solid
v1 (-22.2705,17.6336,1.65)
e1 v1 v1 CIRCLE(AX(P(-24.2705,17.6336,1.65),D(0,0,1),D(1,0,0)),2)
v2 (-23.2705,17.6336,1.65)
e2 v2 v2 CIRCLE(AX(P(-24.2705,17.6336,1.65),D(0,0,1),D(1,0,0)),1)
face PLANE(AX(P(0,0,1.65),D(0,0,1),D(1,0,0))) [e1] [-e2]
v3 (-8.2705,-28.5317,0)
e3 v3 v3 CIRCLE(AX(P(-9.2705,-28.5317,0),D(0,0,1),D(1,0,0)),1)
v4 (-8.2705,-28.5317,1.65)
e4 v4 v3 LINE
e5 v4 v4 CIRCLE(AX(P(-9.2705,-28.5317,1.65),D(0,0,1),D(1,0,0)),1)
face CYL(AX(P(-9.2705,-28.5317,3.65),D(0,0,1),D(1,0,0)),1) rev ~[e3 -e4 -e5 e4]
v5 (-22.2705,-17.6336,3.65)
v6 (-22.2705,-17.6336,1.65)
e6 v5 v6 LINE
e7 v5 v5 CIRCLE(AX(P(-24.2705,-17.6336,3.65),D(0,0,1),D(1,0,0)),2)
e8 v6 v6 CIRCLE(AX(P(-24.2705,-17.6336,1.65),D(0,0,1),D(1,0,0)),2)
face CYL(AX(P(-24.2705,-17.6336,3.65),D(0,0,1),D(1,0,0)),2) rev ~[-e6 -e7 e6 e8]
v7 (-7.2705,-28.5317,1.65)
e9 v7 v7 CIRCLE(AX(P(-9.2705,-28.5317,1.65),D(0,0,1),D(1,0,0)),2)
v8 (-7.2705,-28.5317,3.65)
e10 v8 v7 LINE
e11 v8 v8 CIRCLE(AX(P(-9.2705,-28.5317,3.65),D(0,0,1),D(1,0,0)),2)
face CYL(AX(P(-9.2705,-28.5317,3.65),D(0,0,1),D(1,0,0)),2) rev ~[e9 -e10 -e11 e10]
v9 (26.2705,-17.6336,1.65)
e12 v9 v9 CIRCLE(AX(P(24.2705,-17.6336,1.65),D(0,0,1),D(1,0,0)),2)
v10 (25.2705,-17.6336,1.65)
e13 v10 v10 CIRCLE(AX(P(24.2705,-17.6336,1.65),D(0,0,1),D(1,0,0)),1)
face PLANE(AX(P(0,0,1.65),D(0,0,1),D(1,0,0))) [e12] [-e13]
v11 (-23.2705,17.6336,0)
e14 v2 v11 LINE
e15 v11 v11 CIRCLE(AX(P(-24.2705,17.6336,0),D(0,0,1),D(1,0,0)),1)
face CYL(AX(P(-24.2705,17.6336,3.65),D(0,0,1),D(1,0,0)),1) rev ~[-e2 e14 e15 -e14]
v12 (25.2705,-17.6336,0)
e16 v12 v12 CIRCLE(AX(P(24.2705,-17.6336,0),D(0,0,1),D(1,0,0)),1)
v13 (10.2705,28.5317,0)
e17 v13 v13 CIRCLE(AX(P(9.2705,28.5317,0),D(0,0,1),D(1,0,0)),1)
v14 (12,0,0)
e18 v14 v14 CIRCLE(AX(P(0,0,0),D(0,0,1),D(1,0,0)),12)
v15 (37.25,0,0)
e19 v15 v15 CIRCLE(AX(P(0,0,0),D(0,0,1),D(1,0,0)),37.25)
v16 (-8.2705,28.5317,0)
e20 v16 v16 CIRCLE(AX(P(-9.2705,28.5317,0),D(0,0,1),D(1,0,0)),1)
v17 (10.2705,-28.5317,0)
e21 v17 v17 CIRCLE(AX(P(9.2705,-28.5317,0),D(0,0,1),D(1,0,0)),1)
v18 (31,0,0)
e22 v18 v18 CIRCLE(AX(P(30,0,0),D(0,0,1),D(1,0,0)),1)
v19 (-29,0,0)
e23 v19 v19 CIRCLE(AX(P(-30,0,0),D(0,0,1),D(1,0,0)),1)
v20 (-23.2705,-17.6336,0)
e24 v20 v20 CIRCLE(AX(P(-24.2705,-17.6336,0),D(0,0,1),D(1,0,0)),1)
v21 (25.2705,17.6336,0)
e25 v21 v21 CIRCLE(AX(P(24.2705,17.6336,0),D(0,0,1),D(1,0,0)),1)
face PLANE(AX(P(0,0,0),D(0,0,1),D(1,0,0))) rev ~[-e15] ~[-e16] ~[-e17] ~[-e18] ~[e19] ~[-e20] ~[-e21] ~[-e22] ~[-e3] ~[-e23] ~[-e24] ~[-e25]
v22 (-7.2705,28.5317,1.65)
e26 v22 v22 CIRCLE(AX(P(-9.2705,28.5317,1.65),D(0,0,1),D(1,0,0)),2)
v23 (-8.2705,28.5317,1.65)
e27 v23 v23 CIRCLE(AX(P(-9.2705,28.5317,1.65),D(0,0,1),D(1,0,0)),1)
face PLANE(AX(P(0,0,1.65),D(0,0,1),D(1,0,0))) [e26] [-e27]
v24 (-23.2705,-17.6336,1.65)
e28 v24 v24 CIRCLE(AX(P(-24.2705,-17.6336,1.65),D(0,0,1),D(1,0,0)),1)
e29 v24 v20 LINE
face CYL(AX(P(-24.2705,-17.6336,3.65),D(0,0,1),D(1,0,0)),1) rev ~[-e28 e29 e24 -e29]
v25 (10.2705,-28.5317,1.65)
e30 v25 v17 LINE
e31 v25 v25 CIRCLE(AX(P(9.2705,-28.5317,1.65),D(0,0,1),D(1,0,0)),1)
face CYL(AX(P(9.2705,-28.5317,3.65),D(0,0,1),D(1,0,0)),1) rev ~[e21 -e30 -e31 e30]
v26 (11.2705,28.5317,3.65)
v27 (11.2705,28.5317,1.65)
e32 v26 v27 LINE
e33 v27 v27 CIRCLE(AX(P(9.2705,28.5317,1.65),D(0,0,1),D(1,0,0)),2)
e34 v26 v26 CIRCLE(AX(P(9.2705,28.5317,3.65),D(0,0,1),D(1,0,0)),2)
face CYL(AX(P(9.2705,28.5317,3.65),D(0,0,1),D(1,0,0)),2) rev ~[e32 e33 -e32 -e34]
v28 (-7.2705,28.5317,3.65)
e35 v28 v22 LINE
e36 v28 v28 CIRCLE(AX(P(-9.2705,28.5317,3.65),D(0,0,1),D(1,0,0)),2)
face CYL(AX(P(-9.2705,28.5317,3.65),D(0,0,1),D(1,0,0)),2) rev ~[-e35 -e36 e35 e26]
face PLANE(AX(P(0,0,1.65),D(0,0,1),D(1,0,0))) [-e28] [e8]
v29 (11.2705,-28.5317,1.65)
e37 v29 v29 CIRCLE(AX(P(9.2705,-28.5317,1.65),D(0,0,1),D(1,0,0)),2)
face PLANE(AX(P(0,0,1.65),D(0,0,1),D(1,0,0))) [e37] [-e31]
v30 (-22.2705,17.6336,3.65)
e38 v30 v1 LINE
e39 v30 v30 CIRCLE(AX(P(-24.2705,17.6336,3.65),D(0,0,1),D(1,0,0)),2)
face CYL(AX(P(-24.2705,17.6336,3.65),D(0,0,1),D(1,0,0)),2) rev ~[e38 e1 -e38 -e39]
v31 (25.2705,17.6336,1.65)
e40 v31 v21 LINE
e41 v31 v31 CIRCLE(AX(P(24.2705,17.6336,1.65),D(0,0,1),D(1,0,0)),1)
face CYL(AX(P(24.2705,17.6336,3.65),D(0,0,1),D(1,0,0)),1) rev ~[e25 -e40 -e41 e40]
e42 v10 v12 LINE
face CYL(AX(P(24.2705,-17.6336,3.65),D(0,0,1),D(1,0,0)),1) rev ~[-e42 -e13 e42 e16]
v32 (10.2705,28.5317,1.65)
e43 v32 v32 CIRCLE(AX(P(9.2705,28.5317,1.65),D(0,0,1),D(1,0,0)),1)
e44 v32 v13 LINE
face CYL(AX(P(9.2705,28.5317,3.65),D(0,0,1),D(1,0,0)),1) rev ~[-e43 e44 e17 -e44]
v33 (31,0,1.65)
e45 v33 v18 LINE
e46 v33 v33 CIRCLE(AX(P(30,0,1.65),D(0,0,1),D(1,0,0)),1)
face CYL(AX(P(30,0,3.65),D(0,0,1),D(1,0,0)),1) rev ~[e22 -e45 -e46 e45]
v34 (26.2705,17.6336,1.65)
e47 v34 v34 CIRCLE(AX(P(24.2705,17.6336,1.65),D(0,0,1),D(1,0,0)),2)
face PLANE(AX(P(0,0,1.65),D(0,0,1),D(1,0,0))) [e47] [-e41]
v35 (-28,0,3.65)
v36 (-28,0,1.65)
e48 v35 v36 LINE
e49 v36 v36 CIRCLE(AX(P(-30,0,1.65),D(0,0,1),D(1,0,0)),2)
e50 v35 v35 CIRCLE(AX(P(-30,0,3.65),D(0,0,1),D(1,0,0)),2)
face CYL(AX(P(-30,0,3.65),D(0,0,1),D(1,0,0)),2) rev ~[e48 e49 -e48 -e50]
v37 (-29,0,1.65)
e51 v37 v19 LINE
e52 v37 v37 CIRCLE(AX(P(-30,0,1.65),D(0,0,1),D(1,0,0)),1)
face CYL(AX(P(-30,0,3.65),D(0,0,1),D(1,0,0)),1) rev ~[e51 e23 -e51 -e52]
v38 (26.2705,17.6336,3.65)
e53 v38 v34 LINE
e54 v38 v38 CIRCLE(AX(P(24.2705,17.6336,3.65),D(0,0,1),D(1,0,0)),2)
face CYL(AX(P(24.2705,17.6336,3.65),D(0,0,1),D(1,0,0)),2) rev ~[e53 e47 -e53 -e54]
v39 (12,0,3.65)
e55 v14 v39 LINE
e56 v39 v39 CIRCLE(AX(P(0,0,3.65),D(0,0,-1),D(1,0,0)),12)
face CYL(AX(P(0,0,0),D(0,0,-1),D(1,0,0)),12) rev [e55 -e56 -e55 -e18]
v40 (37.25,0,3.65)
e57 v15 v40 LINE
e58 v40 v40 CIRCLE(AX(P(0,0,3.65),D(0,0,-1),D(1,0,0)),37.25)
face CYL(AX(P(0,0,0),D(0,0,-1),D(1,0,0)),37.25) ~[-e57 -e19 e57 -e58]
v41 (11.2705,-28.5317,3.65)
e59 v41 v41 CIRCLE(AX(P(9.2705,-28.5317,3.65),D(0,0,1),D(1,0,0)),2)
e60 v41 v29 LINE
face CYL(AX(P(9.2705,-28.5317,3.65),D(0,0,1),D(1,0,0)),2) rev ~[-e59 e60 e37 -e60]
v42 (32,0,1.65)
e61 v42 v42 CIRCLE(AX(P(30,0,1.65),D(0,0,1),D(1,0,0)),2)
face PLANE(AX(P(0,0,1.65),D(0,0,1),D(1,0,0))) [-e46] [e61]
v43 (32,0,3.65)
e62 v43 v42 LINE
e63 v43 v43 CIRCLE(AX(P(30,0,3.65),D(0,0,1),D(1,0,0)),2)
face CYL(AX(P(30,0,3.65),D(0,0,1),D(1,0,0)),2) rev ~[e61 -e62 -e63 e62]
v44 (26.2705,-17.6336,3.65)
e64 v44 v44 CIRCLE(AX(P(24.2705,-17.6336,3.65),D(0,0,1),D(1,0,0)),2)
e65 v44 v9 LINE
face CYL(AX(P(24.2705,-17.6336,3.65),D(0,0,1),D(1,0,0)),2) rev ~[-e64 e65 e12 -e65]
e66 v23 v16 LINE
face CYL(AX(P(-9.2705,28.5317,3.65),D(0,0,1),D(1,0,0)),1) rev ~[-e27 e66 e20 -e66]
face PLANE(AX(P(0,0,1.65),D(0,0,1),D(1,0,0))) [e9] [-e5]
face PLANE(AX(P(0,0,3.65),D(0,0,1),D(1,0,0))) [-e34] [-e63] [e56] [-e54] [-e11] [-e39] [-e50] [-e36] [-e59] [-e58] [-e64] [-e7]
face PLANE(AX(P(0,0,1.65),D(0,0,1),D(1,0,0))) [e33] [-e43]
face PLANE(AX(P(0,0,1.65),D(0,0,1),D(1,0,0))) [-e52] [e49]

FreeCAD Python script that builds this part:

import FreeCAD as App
import Part
import Sketcher
from FreeCAD import Vector

doc = App.newDocument("Part")
body = doc.addObject("PartDesign::Body", "Body")

# Sketch on XY plane
sketch1 = body.newObject("Sketcher::SketchObject", "Sketch")
sketch1.AttachmentSupport = (doc.getObject("XY_Plane"), [""])
sketch1.MapMode = "FlatFace"
sketch1.addGeometry([
    Part.Circle(Vector(0, 0, 0), Vector(0, 0, 1), 37),
    Part.Circle(Vector(0, 0, 0), Vector(0, 0, 1), 12),
], False)
sketch1.addConstraint([
    Sketcher.Constraint("Coincident", 0, 3, -1, 1),
    Sketcher.Constraint("Coincident", 1, 3, -1, 1),
    Sketcher.Constraint("Diameter", 1, 24.0),
    Sketcher.Constraint("Diameter", 0, 74.5),
])
pad1 = body.newObject("PartDesign::Pad", "Pad")
pad1.Profile = sketch1
pad1.Length = 10

# Sketch on XY plane
sketch2 = body.newObject("Sketcher::SketchObject", "Sketch001")
sketch2.AttachmentSupport = (doc.getObject("XY_Plane"), [""])
sketch2.MapMode = "FlatFace"
sketch2.AttachmentOffset = App.Placement(Vector(0, 0, 10), App.Rotation())
sketch2.addGeometry(Part.Circle(Vector(0, 0, 0), Vector(0, 0, 1), 38), False)
sketch2.addConstraint([
    Sketcher.Constraint("Coincident", 0, 3, -1, 1),
    Sketcher.Constraint("Diameter", 0, 76.0),
])
pocket1 = body.newObject("PartDesign::Pocket", "Pocket")
pocket1.Profile = sketch2
pocket1.Length = 6.35

# Sketch on XY plane
sketch3 = body.newObject("Sketcher::SketchObject", "Sketch002")
sketch3.AttachmentSupport = (doc.getObject("XY_Plane"), [""])
sketch3.MapMode = "FlatFace"
sketch3.AttachmentOffset = App.Placement(Vector(0, 0, 3.65), App.Rotation())
sketch3.addGeometry([
    Part.Circle(Vector(30, 0, 0), Vector(0, 0, 1), 1),  # 0
    Part.Circle(Vector(24.3, 17.6, 0), Vector(0, 0, 1), 1),  # 1
    Part.Circle(Vector(9.3, 28.5, 0), Vector(0, 0, 1), 1),  # 2
    Part.Circle(Vector(-9.3, 28.5, 0), Vector(0, 0, 1), 1),  # 3
    Part.Circle(Vector(-24.3, 17.6, 0), Vector(0, 0, 1), 1),  # 4
    Part.Circle(Vector(-30, 0, 0), Vector(0, 0, 1), 1),  # 5
    Part.Circle(Vector(-24.3, -17.6, 0), Vector(0, 0, 1), 1),  # 6
    Part.Circle(Vector(-9.3, -28.5, 0), Vector(0, 0, 1), 1),  # 7
    Part.Circle(Vector(9.3, -28.5, 0), Vector(0, 0, 1), 1),  # 8
    Part.Circle(Vector(24.3, -17.6, 0), Vector(0, 0, 1), 1),  # 9
], False)
sketch3.addConstraint([
    Sketcher.Constraint("Equal", 0, 1),
    Sketcher.Constraint("Equal", 1, 2),
    Sketcher.Constraint("Equal", 2, 3),
    Sketcher.Constraint("Equal", 3, 4),
    Sketcher.Constraint("Equal", 4, 5),
    Sketcher.Constraint("Equal", 5, 6),
    Sketcher.Constraint("Equal", 6, 7),
    Sketcher.Constraint("Equal", 7, 8),
    Sketcher.Constraint("Equal", 8, 9),
    Sketcher.Constraint("Symmetric", 0, 3, 5, 3, -1, 1),
    Sketcher.Constraint("Symmetric", 1, 3, 6, 3, -1, 1),
    Sketcher.Constraint("Symmetric", 2, 3, 7, 3, -1, 1),
    Sketcher.Constraint("Symmetric", 3, 3, 8, 3, -1, 1),
    Sketcher.Constraint("Symmetric", 4, 3, 9, 3, -1, 1),
    Sketcher.Constraint("Symmetric", 2, 3, 3, 3, -2),
    Sketcher.Constraint("Symmetric", 1, 3, 4, 3, -2),
    Sketcher.Constraint("PointOnObject", 0, 3, -1),
    Sketcher.Constraint("Diameter", 0, 2.0),
    Sketcher.Constraint("DistanceX", -1, 1, 0, 3, 30.0),
    Sketcher.Constraint("DistanceX", 2, 3, 1, 3, 15.0),
    Sketcher.Constraint("DistanceY", 1, 3, 2, 3, 10.898),
    Sketcher.Constraint("DistanceX", 3, 3, 2, 3, 18.541),
    Sketcher.Constraint("DistanceY", -1, 1, 1, 3, 17.6336),
])
pocket2 = body.newObject("PartDesign::Pocket", "Pocket001")
pocket2.Profile = sketch3
pocket2.Type = "ThroughAll"

# Sketch on XY plane
sketch4 = body.newObject("Sketcher::SketchObject", "Sketch003")
sketch4.AttachmentSupport = (doc.getObject("XY_Plane"), [""])
sketch4.MapMode = "FlatFace"
sketch4.AttachmentOffset = App.Placement(Vector(0, 0, 3.65), App.Rotation())
sketch4.addGeometry([
    Part.Circle(Vector(30, 0, 0), Vector(0, 0, 1), 2),  # 0
    Part.Circle(Vector(24.3, 17.6, 0), Vector(0, 0, 1), 2),  # 1
    Part.Circle(Vector(9.3, 28.5, 0), Vector(0, 0, 1), 2),  # 2
    Part.Circle(Vector(-9.3, 28.5, 0), Vector(0, 0, 1), 2),  # 3
    Part.Circle(Vector(-24.3, 17.6, 0), Vector(0, 0, 1), 2),  # 4
    Part.Circle(Vector(-30, 0, 0), Vector(0, 0, 1), 2),  # 5
    Part.Circle(Vector(-24.3, -17.6, 0), Vector(0, 0, 1), 2),  # 6
    Part.Circle(Vector(-9.3, -28.5, 0), Vector(0, 0, 1), 2),  # 7
    Part.Circle(Vector(9.3, -28.5, 0), Vector(0, 0, 1), 2),  # 8
    Part.Circle(Vector(24.3, -17.6, 0), Vector(0, 0, 1), 2),  # 9
], False)
sketch4.addConstraint([
    Sketcher.Constraint("Equal", 0, 1),
    Sketcher.Constraint("Equal", 1, 2),
    Sketcher.Constraint("Equal", 2, 3),
    Sketcher.Constraint("Equal", 3, 4),
    Sketcher.Constraint("Equal", 4, 5),
    Sketcher.Constraint("Equal", 5, 6),
    Sketcher.Constraint("Equal", 6, 7),
    Sketcher.Constraint("Equal", 7, 8),
    Sketcher.Constraint("Equal", 8, 9),
    Sketcher.Constraint("Symmetric", 0, 3, 5, 3, -1, 1),
    Sketcher.Constraint("Symmetric", 1, 3, 6, 3, -1, 1),
    Sketcher.Constraint("Symmetric", 2, 3, 7, 3, -1, 1),
    Sketcher.Constraint("Symmetric", 3, 3, 8, 3, -1, 1),
    Sketcher.Constraint("Symmetric", 4, 3, 9, 3, -1, 1),
    Sketcher.Constraint("Symmetric", 2, 3, 3, 3, -2),
    Sketcher.Constraint("Symmetric", 1, 3, 4, 3, -2),
    Sketcher.Constraint("PointOnObject", 0, 3, -1),
    Sketcher.Constraint("Diameter", 0, 4.0),
    Sketcher.Constraint("DistanceX", -1, 1, 0, 3, 30.0),
    Sketcher.Constraint("DistanceX", 2, 3, 1, 3, 15.0),
    Sketcher.Constraint("DistanceY", 1, 3, 2, 3, 10.898),
    Sketcher.Constraint("DistanceX", 3, 3, 2, 3, 18.541),
    Sketcher.Constraint("DistanceY", -1, 1, 1, 3, 17.6336),
])
pocket3 = body.newObject("PartDesign::Pocket", "Pocket002")
pocket3.Profile = sketch4
pocket3.Length = 2

doc.recompute()
